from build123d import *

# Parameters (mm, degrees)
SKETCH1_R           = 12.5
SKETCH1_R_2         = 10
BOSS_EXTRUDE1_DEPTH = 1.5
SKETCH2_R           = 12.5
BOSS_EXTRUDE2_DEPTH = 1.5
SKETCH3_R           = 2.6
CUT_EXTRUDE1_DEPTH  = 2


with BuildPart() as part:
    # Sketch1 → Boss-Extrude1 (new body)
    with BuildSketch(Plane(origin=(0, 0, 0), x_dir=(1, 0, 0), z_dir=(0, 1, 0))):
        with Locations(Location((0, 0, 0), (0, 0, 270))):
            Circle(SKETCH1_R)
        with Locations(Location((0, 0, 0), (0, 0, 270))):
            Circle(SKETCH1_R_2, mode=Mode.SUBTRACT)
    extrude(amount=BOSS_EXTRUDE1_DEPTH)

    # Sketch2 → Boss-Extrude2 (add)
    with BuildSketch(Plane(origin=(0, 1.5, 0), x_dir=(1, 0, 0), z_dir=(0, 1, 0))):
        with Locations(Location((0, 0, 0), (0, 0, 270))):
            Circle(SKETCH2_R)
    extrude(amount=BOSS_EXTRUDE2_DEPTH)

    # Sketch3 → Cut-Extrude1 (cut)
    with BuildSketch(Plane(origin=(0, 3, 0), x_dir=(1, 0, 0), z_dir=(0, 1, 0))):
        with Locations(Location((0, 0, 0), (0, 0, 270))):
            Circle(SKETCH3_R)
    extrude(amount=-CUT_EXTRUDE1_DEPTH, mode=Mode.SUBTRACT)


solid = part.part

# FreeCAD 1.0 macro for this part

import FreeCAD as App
import Part
import Sketcher

V = App.Vector
Q = App.Units.Quantity

doc = App.newDocument("Part")
params = doc.addObject("Spreadsheet::Sheet", "Params")
for row, (alias, value) in enumerate([
    ("sketch1_diameter", "25 mm"),
    ("sketch1_diameter2", "20 mm"),
    ("pad1_length", "1.5 mm"),
    ("sketch2_diameter", "25 mm"),
    ("pad2_length", "1.5 mm"),
    ("sketch3_diameter", "5.2 mm"),
    ("pocket1_length", "2 mm"),
], start=1):
    params.set(f"A{row}", alias)
    params.set(f"B{row}", "=" + value)
    params.setAlias(f"B{row}", alias)

body = doc.addObject("PartDesign::Body", "Body")

sketch1 = body.newObject("Sketcher::SketchObject", "Sketch")
sketch1.AttachmentSupport = (doc.getObject("XZ_Plane"), [""])
sketch1.MapMode = "FlatFace"
sketch1.addGeometry([
    Part.Circle(V(0, 0, 0), V(0, 0, 1), 12.5),
    Part.Circle(V(0, 0, 0), V(0, 0, 1), 10),
], False)
sketch1.addConstraint([
    Sketcher.Constraint("Coincident", 0, 3, -1, 1),
    Sketcher.Constraint("Coincident", 1, 3, -1, 1),
    Sketcher.Constraint("Diameter", 0, Q("25 mm")),
    Sketcher.Constraint("Diameter", 1, Q("20 mm")),
])
sketch1.setExpression("Constraints[2]", "Params.sketch1_diameter")
sketch1.setExpression("Constraints[3]", "Params.sketch1_diameter2")
pad1 = body.newObject("PartDesign::Pad", "Pad")
pad1.Profile = sketch1
pad1.setExpression("Length", "Params.pad1_length")
pad1.Reversed = True

sketch2 = body.newObject("Sketcher::SketchObject", "Sketch001")
sketch2.AttachmentSupport = (doc.getObject("XZ_Plane"), [""])
sketch2.MapMode = "FlatFace"
sketch2.AttachmentOffset = App.Placement(V(0, 0, -1.5), App.Rotation())
sketch2.addGeometry(Part.Circle(V(0, 0, 0), V(0, 0, 1), 12.5), False)
sketch2.addConstraint([
    Sketcher.Constraint("Coincident", 0, 3, -1, 1),
    Sketcher.Constraint("Diameter", 0, Q("25 mm")),
])
sketch2.setExpression("Constraints[1]", "Params.sketch2_diameter")
pad2 = body.newObject("PartDesign::Pad", "Pad001")
pad2.Profile = sketch2
pad2.setExpression("Length", "Params.pad2_length")
pad2.Reversed = True

sketch3 = body.newObject("Sketcher::SketchObject", "Sketch002")
sketch3.AttachmentSupport = (doc.getObject("XZ_Plane"), [""])
sketch3.MapMode = "FlatFace"
sketch3.AttachmentOffset = App.Placement(V(0, 0, -3), App.Rotation())
sketch3.addGeometry(Part.Circle(V(0, 0, 0), V(0, 0, 1), 2.6), False)
sketch3.addConstraint([
    Sketcher.Constraint("Coincident", 0, 3, -1, 1),
    Sketcher.Constraint("Diameter", 0, Q("5.2 mm")),
])
sketch3.setExpression("Constraints[1]", "Params.sketch3_diameter")
pocket1 = body.newObject("PartDesign::Pocket", "Pocket")
pocket1.Profile = sketch3
pocket1.setExpression("Length", "Params.pocket1_length")
pocket1.Reversed = True

doc.recompute()
